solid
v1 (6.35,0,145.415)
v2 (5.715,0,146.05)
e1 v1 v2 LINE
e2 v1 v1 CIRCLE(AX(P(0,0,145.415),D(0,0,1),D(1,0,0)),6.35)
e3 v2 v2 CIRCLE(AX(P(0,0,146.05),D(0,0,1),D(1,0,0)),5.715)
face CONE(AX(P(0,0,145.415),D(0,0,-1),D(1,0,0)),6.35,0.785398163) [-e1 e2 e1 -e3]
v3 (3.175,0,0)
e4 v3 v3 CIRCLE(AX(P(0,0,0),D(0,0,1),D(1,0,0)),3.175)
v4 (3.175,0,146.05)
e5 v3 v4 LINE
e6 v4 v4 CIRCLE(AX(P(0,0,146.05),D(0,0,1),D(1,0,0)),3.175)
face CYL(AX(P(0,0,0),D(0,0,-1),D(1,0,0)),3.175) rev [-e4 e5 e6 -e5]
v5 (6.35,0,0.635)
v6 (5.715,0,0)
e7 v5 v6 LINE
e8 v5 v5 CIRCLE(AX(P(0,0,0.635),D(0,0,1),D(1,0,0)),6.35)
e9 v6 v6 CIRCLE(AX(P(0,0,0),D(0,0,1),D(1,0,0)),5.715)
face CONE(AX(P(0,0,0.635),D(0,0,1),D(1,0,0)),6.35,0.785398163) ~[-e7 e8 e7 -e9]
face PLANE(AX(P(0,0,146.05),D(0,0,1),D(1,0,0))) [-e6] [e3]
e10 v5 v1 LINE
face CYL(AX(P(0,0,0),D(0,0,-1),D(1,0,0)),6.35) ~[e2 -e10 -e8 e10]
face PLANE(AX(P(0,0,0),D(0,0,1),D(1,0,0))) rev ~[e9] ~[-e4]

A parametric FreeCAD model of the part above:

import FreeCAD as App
import Part
import Sketcher
Q = App.Units.Quantity


def edges_at(feature, points):
    """Names of the edges that pass closest to the given points."""
    edges = feature.Shape.Edges
    near = lambda p: min(range(len(edges)), key=lambda i: edges[i].distToShape(Part.Vertex(*p))[0])
    return sorted({f"Edge{near(p) + 1}" for p in points})

doc = App.newDocument("Part")
params = doc.addObject("Spreadsheet::Sheet", "Params")
for row, (alias, value) in enumerate([
    ("sketch1_diameter", "0.5 in"),
    ("sketch1_diameter2", "0.25 in"),
    ("pad1_length", "5.75 in"),
    ("chamfer_size", "0.025 in"),
], start=1):
    params.set(f"A{row}", alias)
    params.set(f"B{row}", "=" + value)
    params.setAlias(f"B{row}", alias)

body = doc.addObject("PartDesign::Body", "Body")

sketch1 = body.newObject("Sketcher::SketchObject", "Sketch")
sketch1.AttachmentSupport = (doc.getObject("XY_Plane"), [""])
sketch1.MapMode = "FlatFace"
sketch1.addGeometry(Part.Circle(App.Vector(0, 0, 0), App.Vector(0, 0, 1), 6.3), False)
sketch1.addGeometry(Part.Circle(App.Vector(0, 0, 0), App.Vector(0, 0, 1), 3.2), False)
sketch1.addConstraint(Sketcher.Constraint("Coincident", 0, 3, -1, 1))
sketch1.addConstraint(Sketcher.Constraint("Coincident", 1, 3, -1, 1))
sketch1.addConstraint(Sketcher.Constraint("Diameter", 0, Q("0.5 in")))
sketch1.addConstraint(Sketcher.Constraint("Diameter", 1, Q("0.25 in")))
sketch1.setExpression("Constraints[2]", "Params.sketch1_diameter")
sketch1.setExpression("Constraints[3]", "Params.sketch1_diameter2")
pad1 = body.newObject("PartDesign::Pad", "Pad")
pad1.Profile = sketch1
pad1.setExpression("Length", "Params.pad1_length")
doc.recompute()

chamfer = body.newObject("PartDesign::Chamfer", "Chamfer")
chamfer.Base = (pad1, edges_at(pad1, [(-6.35, 0, 146.05), (-6.35, 0, 0)]))
chamfer.setExpression("Size", "Params.chamfer_size")

doc.recompute()
